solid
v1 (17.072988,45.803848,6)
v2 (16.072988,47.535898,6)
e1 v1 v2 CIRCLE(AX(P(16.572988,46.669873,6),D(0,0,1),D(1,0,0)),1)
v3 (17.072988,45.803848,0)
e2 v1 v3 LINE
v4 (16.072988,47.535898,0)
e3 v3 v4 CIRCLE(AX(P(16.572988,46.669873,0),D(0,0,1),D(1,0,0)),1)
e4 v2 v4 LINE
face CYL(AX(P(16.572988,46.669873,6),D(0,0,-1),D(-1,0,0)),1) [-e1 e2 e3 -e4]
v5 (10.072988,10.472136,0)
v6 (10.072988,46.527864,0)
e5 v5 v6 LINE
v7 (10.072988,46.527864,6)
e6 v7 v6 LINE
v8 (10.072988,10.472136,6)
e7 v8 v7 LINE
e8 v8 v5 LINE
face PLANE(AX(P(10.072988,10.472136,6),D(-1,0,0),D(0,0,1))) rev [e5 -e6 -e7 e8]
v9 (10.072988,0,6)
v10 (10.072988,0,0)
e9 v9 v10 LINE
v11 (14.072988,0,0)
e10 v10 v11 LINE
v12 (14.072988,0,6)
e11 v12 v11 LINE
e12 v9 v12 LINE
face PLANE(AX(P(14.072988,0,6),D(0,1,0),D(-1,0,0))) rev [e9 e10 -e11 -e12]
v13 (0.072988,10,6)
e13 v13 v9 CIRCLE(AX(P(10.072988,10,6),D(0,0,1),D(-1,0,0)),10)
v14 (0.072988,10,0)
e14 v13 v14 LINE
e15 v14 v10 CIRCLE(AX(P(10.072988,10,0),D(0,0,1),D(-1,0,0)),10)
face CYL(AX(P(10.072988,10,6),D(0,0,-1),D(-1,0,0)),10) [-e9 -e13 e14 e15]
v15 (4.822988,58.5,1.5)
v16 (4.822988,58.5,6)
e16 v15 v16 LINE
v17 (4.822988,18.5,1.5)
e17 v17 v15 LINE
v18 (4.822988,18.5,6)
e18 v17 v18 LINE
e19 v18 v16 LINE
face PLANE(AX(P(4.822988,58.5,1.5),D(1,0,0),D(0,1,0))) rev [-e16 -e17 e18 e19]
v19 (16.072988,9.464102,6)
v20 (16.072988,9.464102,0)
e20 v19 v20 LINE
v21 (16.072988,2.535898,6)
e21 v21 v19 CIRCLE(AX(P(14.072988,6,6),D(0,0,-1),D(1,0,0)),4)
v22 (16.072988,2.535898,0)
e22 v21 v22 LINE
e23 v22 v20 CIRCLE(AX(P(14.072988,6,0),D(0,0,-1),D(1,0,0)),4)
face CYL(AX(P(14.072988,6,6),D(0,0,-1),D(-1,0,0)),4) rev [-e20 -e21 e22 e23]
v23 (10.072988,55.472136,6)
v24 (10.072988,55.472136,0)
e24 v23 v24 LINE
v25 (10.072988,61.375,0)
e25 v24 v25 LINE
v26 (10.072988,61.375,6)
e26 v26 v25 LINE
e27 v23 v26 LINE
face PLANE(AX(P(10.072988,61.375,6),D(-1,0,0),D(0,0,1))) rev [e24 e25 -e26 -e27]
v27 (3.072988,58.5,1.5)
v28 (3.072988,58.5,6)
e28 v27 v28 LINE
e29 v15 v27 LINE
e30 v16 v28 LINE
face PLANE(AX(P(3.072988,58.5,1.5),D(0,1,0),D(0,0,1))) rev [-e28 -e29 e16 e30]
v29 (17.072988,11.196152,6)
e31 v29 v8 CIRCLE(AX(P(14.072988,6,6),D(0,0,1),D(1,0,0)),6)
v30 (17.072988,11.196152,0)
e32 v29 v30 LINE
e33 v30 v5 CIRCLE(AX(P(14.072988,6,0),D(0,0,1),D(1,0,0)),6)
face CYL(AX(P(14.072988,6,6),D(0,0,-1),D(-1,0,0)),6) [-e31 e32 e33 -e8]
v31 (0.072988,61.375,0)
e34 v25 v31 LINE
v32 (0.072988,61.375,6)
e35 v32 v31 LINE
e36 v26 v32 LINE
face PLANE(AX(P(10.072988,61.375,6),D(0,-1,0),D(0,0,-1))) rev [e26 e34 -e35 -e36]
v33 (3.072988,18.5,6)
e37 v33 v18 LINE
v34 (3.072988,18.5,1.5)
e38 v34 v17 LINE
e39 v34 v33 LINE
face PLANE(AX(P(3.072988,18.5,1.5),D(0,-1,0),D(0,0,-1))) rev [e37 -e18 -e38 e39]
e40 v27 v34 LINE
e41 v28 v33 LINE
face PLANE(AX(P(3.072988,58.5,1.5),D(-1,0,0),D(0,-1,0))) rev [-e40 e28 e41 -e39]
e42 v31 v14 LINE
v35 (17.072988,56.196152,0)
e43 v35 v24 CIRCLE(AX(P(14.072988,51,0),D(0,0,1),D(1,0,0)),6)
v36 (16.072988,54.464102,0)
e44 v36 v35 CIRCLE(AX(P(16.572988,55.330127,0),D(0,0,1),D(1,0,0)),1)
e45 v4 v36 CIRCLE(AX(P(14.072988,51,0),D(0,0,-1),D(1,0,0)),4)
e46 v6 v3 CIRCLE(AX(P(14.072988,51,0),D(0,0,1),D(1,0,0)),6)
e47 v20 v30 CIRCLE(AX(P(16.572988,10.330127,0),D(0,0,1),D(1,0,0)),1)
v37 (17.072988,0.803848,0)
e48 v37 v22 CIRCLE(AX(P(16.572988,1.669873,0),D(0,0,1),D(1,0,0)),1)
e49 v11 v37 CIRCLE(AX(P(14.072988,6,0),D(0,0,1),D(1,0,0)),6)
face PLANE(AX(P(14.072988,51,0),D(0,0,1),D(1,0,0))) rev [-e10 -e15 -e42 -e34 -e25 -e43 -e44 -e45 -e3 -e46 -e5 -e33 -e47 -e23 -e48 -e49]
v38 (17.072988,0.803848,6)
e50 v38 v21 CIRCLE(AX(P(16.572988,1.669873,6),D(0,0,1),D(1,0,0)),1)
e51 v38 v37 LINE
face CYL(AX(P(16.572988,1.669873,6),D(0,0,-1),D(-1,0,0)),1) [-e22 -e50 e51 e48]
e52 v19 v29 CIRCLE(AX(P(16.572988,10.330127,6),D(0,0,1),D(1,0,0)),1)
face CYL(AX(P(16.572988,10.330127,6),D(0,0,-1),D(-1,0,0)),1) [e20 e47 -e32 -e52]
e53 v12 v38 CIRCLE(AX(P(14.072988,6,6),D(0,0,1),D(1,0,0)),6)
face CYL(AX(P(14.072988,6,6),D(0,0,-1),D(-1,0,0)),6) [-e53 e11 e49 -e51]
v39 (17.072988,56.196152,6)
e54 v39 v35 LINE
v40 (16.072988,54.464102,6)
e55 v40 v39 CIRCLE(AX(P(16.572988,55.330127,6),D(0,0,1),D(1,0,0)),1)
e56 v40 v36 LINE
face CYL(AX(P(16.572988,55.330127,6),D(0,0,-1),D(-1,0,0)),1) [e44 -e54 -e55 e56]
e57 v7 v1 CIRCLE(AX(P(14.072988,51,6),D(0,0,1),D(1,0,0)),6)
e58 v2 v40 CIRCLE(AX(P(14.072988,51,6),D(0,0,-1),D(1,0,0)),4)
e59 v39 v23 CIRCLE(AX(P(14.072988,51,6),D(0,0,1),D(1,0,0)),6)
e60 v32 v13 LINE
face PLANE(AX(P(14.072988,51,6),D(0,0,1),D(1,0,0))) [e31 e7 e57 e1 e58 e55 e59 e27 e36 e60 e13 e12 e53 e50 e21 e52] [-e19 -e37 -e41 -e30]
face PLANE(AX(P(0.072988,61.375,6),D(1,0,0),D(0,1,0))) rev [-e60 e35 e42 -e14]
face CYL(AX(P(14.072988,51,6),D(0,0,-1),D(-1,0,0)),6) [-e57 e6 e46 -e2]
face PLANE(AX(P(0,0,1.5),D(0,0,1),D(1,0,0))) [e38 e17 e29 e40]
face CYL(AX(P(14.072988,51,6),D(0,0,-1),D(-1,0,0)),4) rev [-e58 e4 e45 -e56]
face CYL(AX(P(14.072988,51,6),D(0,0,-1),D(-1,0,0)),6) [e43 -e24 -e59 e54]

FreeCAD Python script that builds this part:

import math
import FreeCAD as App
import Part
import Sketcher

V = App.Vector
Q = App.Units.Quantity


def add_polygon(sketch, points):
    """Adds a closed chain of lines whose ends are joined by coincident constraints."""
    first, n = sketch.GeometryCount, len(points)
    for a, b in zip(points, points[1:] + points[:1]):
        sketch.addGeometry(Part.LineSegment(App.Vector(*a, 0), App.Vector(*b, 0)), False)
    for i in range(n):
        sketch.addConstraint(Sketcher.Constraint("Coincident", first + i, 2, first + (i + 1) % n, 1))

doc = App.newDocument("Part")
body = doc.addObject("PartDesign::Body", "Body")

# Sketch on XY plane
sketch1 = body.newObject("Sketcher::SketchObject", "Sketch")
sketch1.AttachmentSupport = (doc.getObject("XY_Plane"), [""])
sketch1.MapMode = "FlatFace"
sketch1.addGeometry([
    Part.LineSegment(V(10.1, 10.5, 0), V(10.1, 46.5, 0)),  # 0
    Part.ArcOfCircle(Part.Circle(V(14.1, 51, 0), V(0, 0, 1), 6), math.radians(-132), math.radians(-60)),  # 1
    Part.ArcOfCircle(Part.Circle(V(16.6, 46.7, 0), V(0, 0, 1), 1), math.radians(-60), math.radians(120)),  # 2
    Part.ArcOfCircle(Part.Circle(V(14.1, 51, 0), V(0, 0, 1), 4), math.radians(60), math.radians(300)),  # 3
    Part.ArcOfCircle(Part.Circle(V(16.6, 55.3, 0), V(0, 0, 1), 1), math.radians(-120), math.radians(60)),  # 4
    Part.ArcOfCircle(Part.Circle(V(14.1, 51, 0), V(0, 0, 1), 6), math.radians(60), math.radians(132)),  # 5
    Part.LineSegment(V(10.1, 55.5, 0), V(10.1, 61.4, 0)),  # 6
    Part.LineSegment(V(10.1, 61.4, 0), V(0.1, 61.4, 0)),  # 7
    Part.LineSegment(V(0.1, 61.4, 0), V(0.1, 10, 0)),  # 8
    Part.ArcOfCircle(Part.Circle(V(10.1, 10, 0), V(0, 0, 1), 10), math.radians(180), math.radians(270)),  # 9
    Part.LineSegment(V(10.1, 0, 0), V(14.1, 0, 0)),  # 10
    Part.ArcOfCircle(Part.Circle(V(14.1, 6, 0), V(0, 0, 1), 6), math.radians(-90), math.radians(-60)),  # 11
    Part.ArcOfCircle(Part.Circle(V(16.6, 1.7, 0), V(0, 0, 1), 1), math.radians(-60), math.radians(120)),  # 12
    Part.ArcOfCircle(Part.Circle(V(14.1, 6, 0), V(0, 0, 1), 4), math.radians(60), math.radians(300)),  # 13
    Part.ArcOfCircle(Part.Circle(V(16.6, 10.3, 0), V(0, 0, 1), 1), math.radians(-120), math.radians(60)),  # 14
    Part.ArcOfCircle(Part.Circle(V(14.1, 6, 0), V(0, 0, 1), 6), math.radians(60), math.radians(132)),  # 15
], False)
sketch1.addConstraint([
    Sketcher.Constraint("Coincident", 0, 2, 1, 1),
    Sketcher.Constraint("Tangent", 1, 2, 2, 1),
    Sketcher.Constraint("Tangent", 2, 2, 3, 2),
    Sketcher.Constraint("Tangent", 3, 1, 4, 1),
    Sketcher.Constraint("Tangent", 4, 2, 5, 1),
    Sketcher.Constraint("Coincident", 5, 2, 6, 1),
    Sketcher.Constraint("Coincident", 6, 2, 7, 1),
    Sketcher.Constraint("Coincident", 7, 2, 8, 1),
    Sketcher.Constraint("Tangent", 8, 2, 9, 1),
    Sketcher.Constraint("Tangent", 9, 2, 10, 1),
    Sketcher.Constraint("Tangent", 10, 2, 11, 1),
    Sketcher.Constraint("Tangent", 11, 2, 12, 1),
    Sketcher.Constraint("Tangent", 12, 2, 13, 2),
    Sketcher.Constraint("Tangent", 13, 1, 14, 1),
    Sketcher.Constraint("Tangent", 14, 2, 15, 1),
    Sketcher.Constraint("Coincident", 15, 2, 0, 1),
    Sketcher.Constraint("Vertical", 0),
    Sketcher.Constraint("Vertical", 6),
    Sketcher.Constraint("Horizontal", 7),
    Sketcher.Constraint("Vertical", 8),
    Sketcher.Constraint("Horizontal", 10),
    Sketcher.Constraint("Coincident", 3, 3, 1, 3),
    Sketcher.Constraint("Coincident", 5, 3, 1, 3),
    Sketcher.Constraint("Coincident", 13, 3, 11, 3),
    Sketcher.Constraint("Coincident", 15, 3, 11, 3),
    Sketcher.Constraint("Equal", 2, 4),
    Sketcher.Constraint("Equal", 5, 11),
    Sketcher.Constraint("Equal", 4, 12),
    Sketcher.Constraint("Equal", 12, 14),
    Sketcher.Constraint("PointOnObject", 9, 2, -1),
    Sketcher.Constraint("Vertical", 2, 3, 4, 3),
    Sketcher.Constraint("Vertical", 5, 3, 11, 3),
    Sketcher.Constraint("Vertical", 4, 3, 12, 3),
    Sketcher.Constraint("Vertical", 12, 3, 14, 3),
    Sketcher.Constraint("Vertical", 9, 3, 0, 2),
    Sketcher.Constraint("Vertical", 0, 2, 5, 2),
    Sketcher.Constraint("Radius", 1, Q("6 mm")),
    Sketcher.Constraint("Radius", 2, Q("1 mm")),
    Sketcher.Constraint("Radius", 9, Q("10 mm")),
    Sketcher.Constraint("DistanceX", 10, 1, 10, 2, Q("4 mm")),
    Sketcher.Constraint("DistanceY", -1, 1, 1, 3, Q("51 mm")),
    Sketcher.Constraint("DistanceX", 1, 3, 1, 2, Q("3 mm")),
    Sketcher.Constraint("DistanceY", 8, 2, 8, 1, Q("51.375 mm")),
    Sketcher.Constraint("DistanceX", -1, 1, 1, 3, Q("14.072988 mm")),
])
pad1 = body.newObject("PartDesign::Pad", "Pad")
pad1.Profile = sketch1
pad1.Length = 6

# Sketch on XY plane
sketch2 = body.newObject("Sketcher::SketchObject", "Sketch001")
sketch2.AttachmentSupport = (doc.getObject("XY_Plane"), [""])
sketch2.MapMode = "FlatFace"
sketch2.AttachmentOffset = App.Placement(V(0, 0, 6), App.Rotation())
add_polygon(sketch2, [(3.1, 58.5), (3.1, 18.5), (4.8, 18.5), (4.8, 58.5)])  # lines 0-3
sketch2.addConstraint([
    Sketcher.Constraint("Vertical", 0),
    Sketcher.Constraint("Horizontal", 1),
    Sketcher.Constraint("Vertical", 2),
    Sketcher.Constraint("Horizontal", 3),
    Sketcher.Constraint("DistanceY", 0, 2, 0, 1, Q("40 mm")),
    Sketcher.Constraint("DistanceX", 1, 1, 1, 2, Q("1.75 mm")),
    Sketcher.Constraint("DistanceY", -1, 1, 0, 2, Q("18.5 mm")),
    Sketcher.Constraint("DistanceX", -1, 1, 0, 2, Q("3.072988 mm")),
])
pocket1 = body.newObject("PartDesign::Pocket", "Pocket")
pocket1.Profile = sketch2
pocket1.Length = 4.5

doc.recompute()
